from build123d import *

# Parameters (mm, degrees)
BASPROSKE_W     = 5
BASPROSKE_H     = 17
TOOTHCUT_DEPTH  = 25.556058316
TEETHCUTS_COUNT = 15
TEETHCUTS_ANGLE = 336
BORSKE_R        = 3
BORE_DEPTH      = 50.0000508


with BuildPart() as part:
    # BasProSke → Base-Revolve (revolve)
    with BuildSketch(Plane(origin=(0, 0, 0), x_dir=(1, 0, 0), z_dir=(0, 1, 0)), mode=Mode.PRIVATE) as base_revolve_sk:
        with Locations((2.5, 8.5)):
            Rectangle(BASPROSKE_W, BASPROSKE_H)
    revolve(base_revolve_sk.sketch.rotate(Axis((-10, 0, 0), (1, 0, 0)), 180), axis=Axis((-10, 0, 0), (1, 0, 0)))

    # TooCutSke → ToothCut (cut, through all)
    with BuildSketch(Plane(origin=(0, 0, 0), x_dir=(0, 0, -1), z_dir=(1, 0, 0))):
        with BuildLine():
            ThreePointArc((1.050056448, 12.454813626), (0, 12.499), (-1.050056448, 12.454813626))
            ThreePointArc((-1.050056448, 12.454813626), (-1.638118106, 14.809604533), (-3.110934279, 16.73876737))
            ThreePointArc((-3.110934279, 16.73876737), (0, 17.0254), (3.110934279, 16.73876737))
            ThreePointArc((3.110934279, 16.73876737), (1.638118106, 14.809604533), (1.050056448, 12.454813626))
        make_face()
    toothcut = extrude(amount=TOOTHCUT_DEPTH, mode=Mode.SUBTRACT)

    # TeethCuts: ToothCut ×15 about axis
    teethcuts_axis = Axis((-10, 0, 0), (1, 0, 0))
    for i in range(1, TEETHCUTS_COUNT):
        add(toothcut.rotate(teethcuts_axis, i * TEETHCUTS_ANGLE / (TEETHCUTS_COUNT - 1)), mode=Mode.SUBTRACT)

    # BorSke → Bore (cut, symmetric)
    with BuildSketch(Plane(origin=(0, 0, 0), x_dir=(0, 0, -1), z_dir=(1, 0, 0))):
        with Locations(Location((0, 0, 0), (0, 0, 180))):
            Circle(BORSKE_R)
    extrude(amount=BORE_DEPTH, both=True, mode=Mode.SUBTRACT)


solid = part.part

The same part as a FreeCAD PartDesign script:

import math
import FreeCAD as App
import Part
import Sketcher
from FreeCAD import Vector


def add_polygon(sketch, points):
    """Adds a closed chain of lines whose ends are joined by coincident constraints."""
    first, n = sketch.GeometryCount, len(points)
    for a, b in zip(points, points[1:] + points[:1]):
        sketch.addGeometry(Part.LineSegment(App.Vector(*a, 0), App.Vector(*b, 0)), False)
    for i in range(n):
        sketch.addConstraint(Sketcher.Constraint("Coincident", first + i, 2, first + (i + 1) % n, 1))

doc = App.newDocument("Part")
params = doc.addObject("Spreadsheet::Sheet", "Params")
for row, (alias, value) in enumerate([
    ("sketch1_width", "5 mm"),
    ("sketch1_height", "17 mm"),
    ("revolution_angle", "360 deg"),
    ("sketch2_radius", "6 mm"),
    ("sketch3_diameter", "6 mm"),
    ("pocket2_length", "100.000102 mm"),
], start=1):
    params.set(f"A{row}", alias)
    params.set(f"B{row}", "=" + value)
    params.setAlias(f"B{row}", alias)

body = doc.addObject("PartDesign::Body", "Body")

sketch1 = body.newObject("Sketcher::SketchObject", "Sketch")
sketch1.AttachmentSupport = (doc.getObject("XZ_Plane"), [""])
sketch1.MapMode = "FlatFace"
add_polygon(sketch1, [(0, -17), (0, 0), (5, 0), (5, -17)])
sketch1.addConstraint(Sketcher.Constraint("Vertical", 0))
sketch1.addConstraint(Sketcher.Constraint("Horizontal", 1))
sketch1.addConstraint(Sketcher.Constraint("Vertical", 2))
sketch1.addConstraint(Sketcher.Constraint("Horizontal", 3))
sketch1.addConstraint(Sketcher.Constraint("Coincident", 0, 2, -1, 1))
sketch1.addConstraint(Sketcher.Constraint("DistanceX", 1, 1, 1, 2, 5.0))
sketch1.addConstraint(Sketcher.Constraint("DistanceY", 0, 1, 0, 2, 17.0))
sketch1.setExpression("Constraints[9]", "Params.sketch1_width")
sketch1.setExpression("Constraints[10]", "Params.sketch1_height")
revolution = body.newObject("PartDesign::Revolution", "Revolution")
revolution.Profile = sketch1
revolution.ReferenceAxis = (sketch1, ["H_Axis"])
revolution.setExpression("Angle", "Params.revolution_angle")

sketch2 = body.newObject("Sketcher::SketchObject", "Sketch001")
sketch2.AttachmentSupport = (doc.getObject("YZ_Plane"), [""])
sketch2.MapMode = "FlatFace"
sketch2.addGeometry(Part.ArcOfCircle(Part.Circle(Vector(0, 0, 0), Vector(0, 0, 1), 12.499), math.radians(-4.81917), math.radians(4.81917)), False)
sketch2.addGeometry(Part.ArcOfCircle(Part.Circle(Vector(12.208521, -7.044999, 0), Vector(0, 0, 1), 6), math.radians(40.971042), math.radians(87.647418)), False)
sketch2.addGeometry(Part.ArcOfCircle(Part.Circle(Vector(0, 0, 0), Vector(0, 0, 1), 17.0254), math.radians(-10.528414), math.radians(10.528414)), False)
sketch2.addGeometry(Part.ArcOfCircle(Part.Circle(Vector(12.208521, 7.044999, 0), Vector(0, 0, 1), 6), math.radians(-87.647418), math.radians(-40.971042)), False)
sketch2.addConstraint(Sketcher.Constraint("Coincident", 0, 1, 1, 2))
sketch2.addConstraint(Sketcher.Constraint("Coincident", 1, 1, 2, 1))
sketch2.addConstraint(Sketcher.Constraint("Coincident", 2, 2, 3, 2))
sketch2.addConstraint(Sketcher.Constraint("Coincident", 3, 1, 0, 2))
sketch2.addConstraint(Sketcher.Constraint("Coincident", 0, 3, -1, 1))
sketch2.addConstraint(Sketcher.Constraint("Coincident", 2, 3, -1, 1))
sketch2.addConstraint(Sketcher.Constraint("Equal", 1, 3))
sketch2.addConstraint(Sketcher.Constraint("Symmetric", 1, 3, 3, 3, -1))
sketch2.addConstraint(Sketcher.Constraint("Radius", 1, 6.0))
sketch2.addConstraint(Sketcher.Constraint("Radius", 0, 12.499))
sketch2.addConstraint(Sketcher.Constraint("Radius", 2, 17.0254))
sketch2.addConstraint(Sketcher.Constraint("DistanceY", 1, 3, 3, 3, 14.089999))
sketch2.addConstraint(Sketcher.Constraint("DistanceX", -1, 1, 1, 3, 12.208521))
sketch2.setExpression("Constraints[8]", "Params.sketch2_radius")
pocket1 = body.newObject("PartDesign::Pocket", "Pocket")
pocket1.Profile = sketch2
pocket1.Type = "ThroughAll"
pocket1.Reversed = True
doc.recompute()

polarpattern = body.newObject("PartDesign::PolarPattern", "PolarPattern")
polarpattern.Originals = [pocket1]
polarpattern.Axis = (doc.getObject("X_Axis"), [""])
polarpattern.Angle = 360
polarpattern.Occurrences = 15
body.Tip = polarpattern

sketch3 = body.newObject("Sketcher::SketchObject", "Sketch002")
sketch3.AttachmentSupport = (doc.getObject("YZ_Plane"), [""])
sketch3.MapMode = "FlatFace"
sketch3.addGeometry(Part.Circle(Vector(0, 0, 0), Vector(0, 0, 1), 3), False)
sketch3.addConstraint(Sketcher.Constraint("Coincident", 0, 3, -1, 1))
sketch3.addConstraint(Sketcher.Constraint("Diameter", 0, 6.0))
sketch3.setExpression("Constraints[1]", "Params.sketch3_diameter")
pocket2 = body.newObject("PartDesign::Pocket", "Pocket001")
pocket2.Profile = sketch3
pocket2.setExpression("Length", "Params.pocket2_length")
pocket2.Midplane = True

doc.recompute()
